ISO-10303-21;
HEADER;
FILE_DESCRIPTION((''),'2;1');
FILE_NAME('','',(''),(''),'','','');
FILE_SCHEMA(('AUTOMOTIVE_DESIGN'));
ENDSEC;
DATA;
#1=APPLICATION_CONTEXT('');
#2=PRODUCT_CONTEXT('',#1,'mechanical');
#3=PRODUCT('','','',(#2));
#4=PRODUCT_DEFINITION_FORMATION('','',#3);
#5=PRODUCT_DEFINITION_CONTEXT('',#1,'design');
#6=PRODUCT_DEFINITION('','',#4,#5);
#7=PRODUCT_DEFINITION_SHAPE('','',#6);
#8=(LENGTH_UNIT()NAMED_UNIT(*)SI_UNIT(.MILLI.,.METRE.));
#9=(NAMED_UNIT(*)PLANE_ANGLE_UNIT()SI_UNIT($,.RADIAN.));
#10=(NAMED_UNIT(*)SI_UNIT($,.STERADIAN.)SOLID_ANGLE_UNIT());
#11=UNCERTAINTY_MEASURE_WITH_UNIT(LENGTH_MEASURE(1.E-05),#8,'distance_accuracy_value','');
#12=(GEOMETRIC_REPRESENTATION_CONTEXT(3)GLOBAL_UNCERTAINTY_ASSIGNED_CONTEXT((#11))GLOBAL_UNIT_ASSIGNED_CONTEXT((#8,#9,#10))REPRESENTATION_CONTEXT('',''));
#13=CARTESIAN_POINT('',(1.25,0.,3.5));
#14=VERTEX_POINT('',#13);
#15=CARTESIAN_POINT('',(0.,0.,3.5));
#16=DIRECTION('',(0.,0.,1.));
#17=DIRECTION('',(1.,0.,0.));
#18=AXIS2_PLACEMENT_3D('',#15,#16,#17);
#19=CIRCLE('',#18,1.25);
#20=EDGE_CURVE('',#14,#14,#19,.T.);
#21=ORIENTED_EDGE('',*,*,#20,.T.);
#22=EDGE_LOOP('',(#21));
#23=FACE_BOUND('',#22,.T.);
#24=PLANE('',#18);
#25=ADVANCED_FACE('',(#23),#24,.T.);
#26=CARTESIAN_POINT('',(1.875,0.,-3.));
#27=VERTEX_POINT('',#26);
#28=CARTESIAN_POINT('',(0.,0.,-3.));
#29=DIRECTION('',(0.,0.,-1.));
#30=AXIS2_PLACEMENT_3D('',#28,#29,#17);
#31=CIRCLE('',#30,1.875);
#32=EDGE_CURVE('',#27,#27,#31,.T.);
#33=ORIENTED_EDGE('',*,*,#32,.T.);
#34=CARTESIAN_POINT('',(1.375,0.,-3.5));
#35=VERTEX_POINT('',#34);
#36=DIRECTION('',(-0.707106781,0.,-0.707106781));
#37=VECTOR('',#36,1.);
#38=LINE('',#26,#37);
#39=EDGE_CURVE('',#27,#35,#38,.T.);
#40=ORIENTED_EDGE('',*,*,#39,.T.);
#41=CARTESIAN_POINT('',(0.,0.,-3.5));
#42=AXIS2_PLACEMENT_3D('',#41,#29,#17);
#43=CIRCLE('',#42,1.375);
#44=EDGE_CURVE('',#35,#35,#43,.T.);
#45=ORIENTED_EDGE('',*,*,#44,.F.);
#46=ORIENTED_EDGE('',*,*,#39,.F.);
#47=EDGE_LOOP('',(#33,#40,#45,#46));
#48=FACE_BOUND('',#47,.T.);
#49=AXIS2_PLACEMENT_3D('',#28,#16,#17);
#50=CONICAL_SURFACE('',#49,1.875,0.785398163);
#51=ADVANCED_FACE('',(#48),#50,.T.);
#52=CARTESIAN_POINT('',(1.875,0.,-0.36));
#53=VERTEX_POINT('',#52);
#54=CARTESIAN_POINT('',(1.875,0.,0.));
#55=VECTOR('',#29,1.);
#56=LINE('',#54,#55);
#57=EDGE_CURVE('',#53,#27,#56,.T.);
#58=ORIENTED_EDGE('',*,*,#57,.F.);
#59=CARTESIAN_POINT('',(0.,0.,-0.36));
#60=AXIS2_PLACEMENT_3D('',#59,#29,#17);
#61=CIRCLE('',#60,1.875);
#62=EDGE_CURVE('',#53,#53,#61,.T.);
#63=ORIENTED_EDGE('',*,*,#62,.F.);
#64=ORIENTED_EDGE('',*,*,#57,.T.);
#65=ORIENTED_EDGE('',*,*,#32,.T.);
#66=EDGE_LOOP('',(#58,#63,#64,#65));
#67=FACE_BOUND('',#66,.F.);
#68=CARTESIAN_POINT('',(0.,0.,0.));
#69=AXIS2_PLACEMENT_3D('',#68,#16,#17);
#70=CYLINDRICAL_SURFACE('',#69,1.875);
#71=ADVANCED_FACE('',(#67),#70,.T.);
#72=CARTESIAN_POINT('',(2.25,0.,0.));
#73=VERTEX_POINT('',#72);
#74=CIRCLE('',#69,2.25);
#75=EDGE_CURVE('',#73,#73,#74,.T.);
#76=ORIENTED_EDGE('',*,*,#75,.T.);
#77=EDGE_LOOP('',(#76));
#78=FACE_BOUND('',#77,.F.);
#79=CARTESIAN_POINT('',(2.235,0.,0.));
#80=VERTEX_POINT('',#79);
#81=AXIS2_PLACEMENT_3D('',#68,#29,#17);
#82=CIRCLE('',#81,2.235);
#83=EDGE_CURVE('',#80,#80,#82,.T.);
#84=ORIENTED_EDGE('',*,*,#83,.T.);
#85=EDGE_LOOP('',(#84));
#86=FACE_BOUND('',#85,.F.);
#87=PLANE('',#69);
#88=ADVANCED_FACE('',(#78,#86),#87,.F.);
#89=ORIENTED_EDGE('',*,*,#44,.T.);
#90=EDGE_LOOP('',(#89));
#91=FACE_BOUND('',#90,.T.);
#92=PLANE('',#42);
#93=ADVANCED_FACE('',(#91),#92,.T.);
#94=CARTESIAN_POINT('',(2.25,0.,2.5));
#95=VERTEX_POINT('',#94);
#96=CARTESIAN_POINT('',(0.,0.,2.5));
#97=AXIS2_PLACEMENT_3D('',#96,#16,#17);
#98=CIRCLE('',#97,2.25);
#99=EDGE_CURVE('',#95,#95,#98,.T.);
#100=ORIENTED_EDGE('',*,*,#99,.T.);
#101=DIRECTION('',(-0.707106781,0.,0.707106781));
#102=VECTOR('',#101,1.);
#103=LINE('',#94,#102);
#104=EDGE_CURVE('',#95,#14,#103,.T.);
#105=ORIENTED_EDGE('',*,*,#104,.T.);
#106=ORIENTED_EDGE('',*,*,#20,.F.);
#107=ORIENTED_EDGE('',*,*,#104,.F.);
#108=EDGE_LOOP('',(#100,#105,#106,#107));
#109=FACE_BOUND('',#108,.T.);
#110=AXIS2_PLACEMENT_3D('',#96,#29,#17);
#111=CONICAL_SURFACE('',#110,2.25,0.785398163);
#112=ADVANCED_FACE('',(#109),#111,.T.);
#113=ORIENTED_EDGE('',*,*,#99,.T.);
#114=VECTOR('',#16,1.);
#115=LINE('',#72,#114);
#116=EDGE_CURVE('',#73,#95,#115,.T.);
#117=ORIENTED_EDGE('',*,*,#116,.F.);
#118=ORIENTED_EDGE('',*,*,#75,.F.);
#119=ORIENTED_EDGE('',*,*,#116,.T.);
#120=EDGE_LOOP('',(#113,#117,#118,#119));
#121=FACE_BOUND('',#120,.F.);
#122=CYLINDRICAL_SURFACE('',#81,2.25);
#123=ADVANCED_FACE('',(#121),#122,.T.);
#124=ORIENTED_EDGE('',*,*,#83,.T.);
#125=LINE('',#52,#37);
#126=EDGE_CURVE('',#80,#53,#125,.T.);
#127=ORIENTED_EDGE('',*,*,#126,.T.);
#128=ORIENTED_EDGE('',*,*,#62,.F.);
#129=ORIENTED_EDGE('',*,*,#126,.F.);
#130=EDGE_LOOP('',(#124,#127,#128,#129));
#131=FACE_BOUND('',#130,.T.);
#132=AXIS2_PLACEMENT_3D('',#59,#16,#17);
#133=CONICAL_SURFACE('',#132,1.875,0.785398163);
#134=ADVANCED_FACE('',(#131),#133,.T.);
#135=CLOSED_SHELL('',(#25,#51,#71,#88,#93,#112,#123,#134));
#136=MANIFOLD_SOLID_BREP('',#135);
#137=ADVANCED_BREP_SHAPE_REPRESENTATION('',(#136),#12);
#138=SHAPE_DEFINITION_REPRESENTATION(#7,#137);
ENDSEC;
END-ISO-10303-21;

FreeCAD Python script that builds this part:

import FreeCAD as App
import Part
import Sketcher
from FreeCAD import Vector


def edges_at(feature, points):
    """Names of the edges that pass closest to the given points."""
    edges = feature.Shape.Edges
    near = lambda p: min(range(len(edges)), key=lambda i: edges[i].distToShape(Part.Vertex(*p))[0])
    return sorted({f"Edge{near(p) + 1}" for p in points})

doc = App.newDocument("Part")
body = doc.addObject("PartDesign::Body", "Body")

sketch1 = body.newObject("Sketcher::SketchObject", "Sketch")
sketch1.AttachmentSupport = (doc.getObject("XY_Plane"), [""])
sketch1.MapMode = "FlatFace"
sketch1.addGeometry(Part.Circle(Vector(0, 0, 0), Vector(0, 0, 1), 2.25), False)
sketch1.addConstraint(Sketcher.Constraint("Coincident", 0, 3, -1, 1))
sketch1.addConstraint(Sketcher.Constraint("Diameter", 0, 4.5))
pad1 = body.newObject("PartDesign::Pad", "Pad")
pad1.Profile = sketch1
pad1.Length = 3.5
doc.recompute()

chamfer = body.newObject("PartDesign::Chamfer", "Chamfer")
chamfer.Base = (pad1, edges_at(pad1, [(-2.25, 0, 3.5)]))
chamfer.Size = 1

sketch2 = body.newObject("Sketcher::SketchObject", "Sketch001")
sketch2.AttachmentSupport = (doc.getObject("XY_Plane"), [""])
sketch2.MapMode = "FlatFace"
sketch2.addGeometry(Part.Circle(Vector(0, 0, 0), Vector(0, 0, 1), 1.875), False)
sketch2.addConstraint(Sketcher.Constraint("Coincident", 0, 3, -1, 1))
sketch2.addConstraint(Sketcher.Constraint("Diameter", 0, 3.75))
pad2 = body.newObject("PartDesign::Pad", "Pad001")
pad2.Profile = sketch2
pad2.Length = 3.5
pad2.Reversed = True
doc.recompute()

chamfer2 = body.newObject("PartDesign::Chamfer", "Chamfer001")
chamfer2.Base = (pad2, edges_at(pad2, [(-1.875, 0, 0)]))
chamfer2.Size = 0.36
doc.recompute()

chamfer3 = body.newObject("PartDesign::Chamfer", "Chamfer002")
chamfer3.Base = (chamfer2, edges_at(chamfer2, [(-1.875, 0, -3.5)]))
chamfer3.Size = 0.5

doc.recompute()
